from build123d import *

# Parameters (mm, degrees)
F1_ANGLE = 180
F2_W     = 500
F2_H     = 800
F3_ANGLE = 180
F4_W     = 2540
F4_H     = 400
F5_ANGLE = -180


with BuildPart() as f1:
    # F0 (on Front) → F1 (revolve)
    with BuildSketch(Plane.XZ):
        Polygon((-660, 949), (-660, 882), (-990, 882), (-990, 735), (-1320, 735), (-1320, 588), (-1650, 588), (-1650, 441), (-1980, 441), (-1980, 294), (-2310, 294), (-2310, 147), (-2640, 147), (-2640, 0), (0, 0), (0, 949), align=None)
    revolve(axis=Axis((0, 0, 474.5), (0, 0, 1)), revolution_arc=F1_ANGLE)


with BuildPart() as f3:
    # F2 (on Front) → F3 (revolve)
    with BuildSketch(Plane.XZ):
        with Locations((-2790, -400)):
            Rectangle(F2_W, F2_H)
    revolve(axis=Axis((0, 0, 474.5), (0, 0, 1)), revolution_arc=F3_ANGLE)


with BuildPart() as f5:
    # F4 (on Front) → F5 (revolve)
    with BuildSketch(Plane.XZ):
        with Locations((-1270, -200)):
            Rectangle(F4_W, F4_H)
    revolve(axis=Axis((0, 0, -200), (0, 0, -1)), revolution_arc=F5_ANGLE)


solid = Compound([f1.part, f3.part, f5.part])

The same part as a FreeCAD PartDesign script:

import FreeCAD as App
import Part
import Sketcher
from FreeCAD import Vector
Q = App.Units.Quantity

doc = App.newDocument("Part")
body = doc.addObject("PartDesign::Body", "Body")

# Sketch on XZ plane
sketch1 = body.newObject("Sketcher::SketchObject", "Sketch")
sketch1.AttachmentSupport = (doc.getObject("XZ_Plane"), [""])
sketch1.MapMode = "FlatFace"
sketch1.addGeometry(Part.LineSegment(Vector(-660, 949, 0), Vector(-660, 882, 0)), False)
sketch1.addGeometry(Part.LineSegment(Vector(-660, 882, 0), Vector(-990, 882, 0)), False)
sketch1.addGeometry(Part.LineSegment(Vector(-990, 882, 0), Vector(-990, 735, 0)), False)
sketch1.addGeometry(Part.LineSegment(Vector(-990, 735, 0), Vector(-1320, 735, 0)), False)
sketch1.addGeometry(Part.LineSegment(Vector(-1320, 735, 0), Vector(-1320, 588, 0)), False)
sketch1.addGeometry(Part.LineSegment(Vector(-1320, 588, 0), Vector(-1650, 588, 0)), False)
sketch1.addGeometry(Part.LineSegment(Vector(-1650, 588, 0), Vector(-1650, 441, 0)), False)
sketch1.addGeometry(Part.LineSegment(Vector(-1650, 441, 0), Vector(-1980, 441, 0)), False)
sketch1.addGeometry(Part.LineSegment(Vector(-1980, 441, 0), Vector(-1980, 294, 0)), False)
sketch1.addGeometry(Part.LineSegment(Vector(-1980, 294, 0), Vector(-2310, 294, 0)), False)
sketch1.addGeometry(Part.LineSegment(Vector(-2310, 294, 0), Vector(-2310, 147, 0)), False)
sketch1.addGeometry(Part.LineSegment(Vector(-2310, 147, 0), Vector(-2640, 147, 0)), False)
sketch1.addGeometry(Part.LineSegment(Vector(-2640, 147, 0), Vector(-2640, 0, 0)), False)
sketch1.addGeometry(Part.LineSegment(Vector(-2640, 0, 0), Vector(0, 0, 0)), False)
sketch1.addGeometry(Part.LineSegment(Vector(0, 0, 0), Vector(0, 949, 0)), False)
sketch1.addGeometry(Part.LineSegment(Vector(0, 949, 0), Vector(-660, 949, 0)), False)
sketch1.addConstraint(Sketcher.Constraint("Coincident", 0, 2, 1, 1))
sketch1.addConstraint(Sketcher.Constraint("Coincident", 1, 2, 2, 1))
sketch1.addConstraint(Sketcher.Constraint("Coincident", 2, 2, 3, 1))
sketch1.addConstraint(Sketcher.Constraint("Coincident", 3, 2, 4, 1))
sketch1.addConstraint(Sketcher.Constraint("Coincident", 4, 2, 5, 1))
sketch1.addConstraint(Sketcher.Constraint("Coincident", 5, 2, 6, 1))
sketch1.addConstraint(Sketcher.Constraint("Coincident", 6, 2, 7, 1))
sketch1.addConstraint(Sketcher.Constraint("Coincident", 7, 2, 8, 1))
sketch1.addConstraint(Sketcher.Constraint("Coincident", 8, 2, 9, 1))
sketch1.addConstraint(Sketcher.Constraint("Coincident", 9, 2, 10, 1))
sketch1.addConstraint(Sketcher.Constraint("Coincident", 10, 2, 11, 1))
sketch1.addConstraint(Sketcher.Constraint("Coincident", 11, 2, 12, 1))
sketch1.addConstraint(Sketcher.Constraint("Coincident", 12, 2, 13, 1))
sketch1.addConstraint(Sketcher.Constraint("Coincident", 13, 2, 14, 1))
sketch1.addConstraint(Sketcher.Constraint("Coincident", 14, 2, 15, 1))
sketch1.addConstraint(Sketcher.Constraint("Coincident", 15, 2, 0, 1))
sketch1.addConstraint(Sketcher.Constraint("Vertical", 0))
sketch1.addConstraint(Sketcher.Constraint("Horizontal", 1))
sketch1.addConstraint(Sketcher.Constraint("Vertical", 2))
sketch1.addConstraint(Sketcher.Constraint("Horizontal", 3))
sketch1.addConstraint(Sketcher.Constraint("Vertical", 4))
sketch1.addConstraint(Sketcher.Constraint("Horizontal", 5))
sketch1.addConstraint(Sketcher.Constraint("Vertical", 6))
sketch1.addConstraint(Sketcher.Constraint("Horizontal", 7))
sketch1.addConstraint(Sketcher.Constraint("Vertical", 8))
sketch1.addConstraint(Sketcher.Constraint("Horizontal", 9))
sketch1.addConstraint(Sketcher.Constraint("Vertical", 10))
sketch1.addConstraint(Sketcher.Constraint("Horizontal", 11))
sketch1.addConstraint(Sketcher.Constraint("Vertical", 12))
sketch1.addConstraint(Sketcher.Constraint("Horizontal", 13))
sketch1.addConstraint(Sketcher.Constraint("Vertical", 14))
sketch1.addConstraint(Sketcher.Constraint("Horizontal", 15))
sketch1.addConstraint(Sketcher.Constraint("Coincident", 13, 2, -1, 1))
sketch1.addConstraint(Sketcher.Constraint("Equal", 1, 3))
sketch1.addConstraint(Sketcher.Constraint("Equal", 3, 5))
sketch1.addConstraint(Sketcher.Constraint("Equal", 5, 7))
sketch1.addConstraint(Sketcher.Constraint("Equal", 7, 9))
sketch1.addConstraint(Sketcher.Constraint("Equal", 9, 11))
sketch1.addConstraint(Sketcher.Constraint("Equal", 2, 4))
sketch1.addConstraint(Sketcher.Constraint("Equal", 4, 6))
sketch1.addConstraint(Sketcher.Constraint("Equal", 6, 8))
sketch1.addConstraint(Sketcher.Constraint("Equal", 8, 10))
sketch1.addConstraint(Sketcher.Constraint("Equal", 10, 12))
sketch1.addConstraint(Sketcher.Constraint("DistanceX", 1, 2, 1, 1, Q("330 mm")))
sketch1.addConstraint(Sketcher.Constraint("DistanceX", 13, 1, 13, 2, Q("2640 mm")))
sketch1.addConstraint(Sketcher.Constraint("DistanceY", 0, 2, 0, 1, Q("67 mm")))
sketch1.addConstraint(Sketcher.Constraint("DistanceY", 2, 2, 2, 1, Q("147 mm")))
revolution = body.newObject("PartDesign::Revolution", "Revolution")
revolution.Profile = sketch1
revolution.ReferenceAxis = (sketch1, ["V_Axis"])
revolution.Angle = 180
body2 = doc.addObject("PartDesign::Body", "Body001")

# Sketch on XZ plane
sketch2 = body2.newObject("Sketcher::SketchObject", "Sketch001")
sketch2.AttachmentSupport = (doc.getObject("XZ_Plane001"), [""])
sketch2.MapMode = "FlatFace"
sketch2.addGeometry(Part.LineSegment(Vector(-3040, 0, 0), Vector(-3040, -800, 0)), False)
sketch2.addGeometry(Part.LineSegment(Vector(-3040, -800, 0), Vector(-2540, -800, 0)), False)
sketch2.addGeometry(Part.LineSegment(Vector(-2540, -800, 0), Vector(-2540, 0, 0)), False)
sketch2.addGeometry(Part.LineSegment(Vector(-2540, 0, 0), Vector(-3040, 0, 0)), False)
sketch2.addConstraint(Sketcher.Constraint("Coincident", 0, 2, 1, 1))
sketch2.addConstraint(Sketcher.Constraint("Coincident", 1, 2, 2, 1))
sketch2.addConstraint(Sketcher.Constraint("Coincident", 2, 2, 3, 1))
sketch2.addConstraint(Sketcher.Constraint("Coincident", 3, 2, 0, 1))
sketch2.addConstraint(Sketcher.Constraint("Vertical", 0))
sketch2.addConstraint(Sketcher.Constraint("Horizontal", 1))
sketch2.addConstraint(Sketcher.Constraint("Vertical", 2))
sketch2.addConstraint(Sketcher.Constraint("Horizontal", 3))
sketch2.addConstraint(Sketcher.Constraint("PointOnObject", 2, 2, -1))
sketch2.addConstraint(Sketcher.Constraint("DistanceX", 1, 1, 1, 2, Q("500 mm")))
sketch2.addConstraint(Sketcher.Constraint("DistanceY", 0, 2, 0, 1, Q("800 mm")))
sketch2.addConstraint(Sketcher.Constraint("DistanceX", 0, 2, -1, 1, Q("3040 mm")))
revolution2 = body2.newObject("PartDesign::Revolution", "Revolution001")
revolution2.Profile = sketch2
revolution2.ReferenceAxis = (sketch2, ["V_Axis"])
revolution2.Angle = 180
body3 = doc.addObject("PartDesign::Body", "Body002")

# Sketch on XZ plane
sketch3 = body3.newObject("Sketcher::SketchObject", "Sketch002")
sketch3.AttachmentSupport = (doc.getObject("XZ_Plane002"), [""])
sketch3.MapMode = "FlatFace"
sketch3.addGeometry(Part.LineSegment(Vector(-2540, 0, 0), Vector(-2540, -400, 0)), False)
sketch3.addGeometry(Part.LineSegment(Vector(-2540, -400, 0), Vector(0, -400, 0)), False)
sketch3.addGeometry(Part.LineSegment(Vector(0, -400, 0), Vector(0, 0, 0)), False)
sketch3.addGeometry(Part.LineSegment(Vector(0, 0, 0), Vector(-2540, 0, 0)), False)
sketch3.addConstraint(Sketcher.Constraint("Coincident", 0, 2, 1, 1))
sketch3.addConstraint(Sketcher.Constraint("Coincident", 1, 2, 2, 1))
sketch3.addConstraint(Sketcher.Constraint("Coincident", 2, 2, 3, 1))
sketch3.addConstraint(Sketcher.Constraint("Coincident", 3, 2, 0, 1))
sketch3.addConstraint(Sketcher.Constraint("Vertical", 0))
sketch3.addConstraint(Sketcher.Constraint("Horizontal", 1))
sketch3.addConstraint(Sketcher.Constraint("Vertical", 2))
sketch3.addConstraint(Sketcher.Constraint("Horizontal", 3))
sketch3.addConstraint(Sketcher.Constraint("Coincident", 2, 2, -1, 1))
sketch3.addConstraint(Sketcher.Constraint("DistanceX", 1, 1, 1, 2, Q("2540 mm")))
sketch3.addConstraint(Sketcher.Constraint("DistanceY", 0, 2, 0, 1, Q("400 mm")))
revolution3 = body3.newObject("PartDesign::Revolution", "Revolution002")
revolution3.Profile = sketch3
revolution3.ReferenceAxis = (sketch3, ["V_Axis"])
revolution3.Angle = 180

doc.recompute()
